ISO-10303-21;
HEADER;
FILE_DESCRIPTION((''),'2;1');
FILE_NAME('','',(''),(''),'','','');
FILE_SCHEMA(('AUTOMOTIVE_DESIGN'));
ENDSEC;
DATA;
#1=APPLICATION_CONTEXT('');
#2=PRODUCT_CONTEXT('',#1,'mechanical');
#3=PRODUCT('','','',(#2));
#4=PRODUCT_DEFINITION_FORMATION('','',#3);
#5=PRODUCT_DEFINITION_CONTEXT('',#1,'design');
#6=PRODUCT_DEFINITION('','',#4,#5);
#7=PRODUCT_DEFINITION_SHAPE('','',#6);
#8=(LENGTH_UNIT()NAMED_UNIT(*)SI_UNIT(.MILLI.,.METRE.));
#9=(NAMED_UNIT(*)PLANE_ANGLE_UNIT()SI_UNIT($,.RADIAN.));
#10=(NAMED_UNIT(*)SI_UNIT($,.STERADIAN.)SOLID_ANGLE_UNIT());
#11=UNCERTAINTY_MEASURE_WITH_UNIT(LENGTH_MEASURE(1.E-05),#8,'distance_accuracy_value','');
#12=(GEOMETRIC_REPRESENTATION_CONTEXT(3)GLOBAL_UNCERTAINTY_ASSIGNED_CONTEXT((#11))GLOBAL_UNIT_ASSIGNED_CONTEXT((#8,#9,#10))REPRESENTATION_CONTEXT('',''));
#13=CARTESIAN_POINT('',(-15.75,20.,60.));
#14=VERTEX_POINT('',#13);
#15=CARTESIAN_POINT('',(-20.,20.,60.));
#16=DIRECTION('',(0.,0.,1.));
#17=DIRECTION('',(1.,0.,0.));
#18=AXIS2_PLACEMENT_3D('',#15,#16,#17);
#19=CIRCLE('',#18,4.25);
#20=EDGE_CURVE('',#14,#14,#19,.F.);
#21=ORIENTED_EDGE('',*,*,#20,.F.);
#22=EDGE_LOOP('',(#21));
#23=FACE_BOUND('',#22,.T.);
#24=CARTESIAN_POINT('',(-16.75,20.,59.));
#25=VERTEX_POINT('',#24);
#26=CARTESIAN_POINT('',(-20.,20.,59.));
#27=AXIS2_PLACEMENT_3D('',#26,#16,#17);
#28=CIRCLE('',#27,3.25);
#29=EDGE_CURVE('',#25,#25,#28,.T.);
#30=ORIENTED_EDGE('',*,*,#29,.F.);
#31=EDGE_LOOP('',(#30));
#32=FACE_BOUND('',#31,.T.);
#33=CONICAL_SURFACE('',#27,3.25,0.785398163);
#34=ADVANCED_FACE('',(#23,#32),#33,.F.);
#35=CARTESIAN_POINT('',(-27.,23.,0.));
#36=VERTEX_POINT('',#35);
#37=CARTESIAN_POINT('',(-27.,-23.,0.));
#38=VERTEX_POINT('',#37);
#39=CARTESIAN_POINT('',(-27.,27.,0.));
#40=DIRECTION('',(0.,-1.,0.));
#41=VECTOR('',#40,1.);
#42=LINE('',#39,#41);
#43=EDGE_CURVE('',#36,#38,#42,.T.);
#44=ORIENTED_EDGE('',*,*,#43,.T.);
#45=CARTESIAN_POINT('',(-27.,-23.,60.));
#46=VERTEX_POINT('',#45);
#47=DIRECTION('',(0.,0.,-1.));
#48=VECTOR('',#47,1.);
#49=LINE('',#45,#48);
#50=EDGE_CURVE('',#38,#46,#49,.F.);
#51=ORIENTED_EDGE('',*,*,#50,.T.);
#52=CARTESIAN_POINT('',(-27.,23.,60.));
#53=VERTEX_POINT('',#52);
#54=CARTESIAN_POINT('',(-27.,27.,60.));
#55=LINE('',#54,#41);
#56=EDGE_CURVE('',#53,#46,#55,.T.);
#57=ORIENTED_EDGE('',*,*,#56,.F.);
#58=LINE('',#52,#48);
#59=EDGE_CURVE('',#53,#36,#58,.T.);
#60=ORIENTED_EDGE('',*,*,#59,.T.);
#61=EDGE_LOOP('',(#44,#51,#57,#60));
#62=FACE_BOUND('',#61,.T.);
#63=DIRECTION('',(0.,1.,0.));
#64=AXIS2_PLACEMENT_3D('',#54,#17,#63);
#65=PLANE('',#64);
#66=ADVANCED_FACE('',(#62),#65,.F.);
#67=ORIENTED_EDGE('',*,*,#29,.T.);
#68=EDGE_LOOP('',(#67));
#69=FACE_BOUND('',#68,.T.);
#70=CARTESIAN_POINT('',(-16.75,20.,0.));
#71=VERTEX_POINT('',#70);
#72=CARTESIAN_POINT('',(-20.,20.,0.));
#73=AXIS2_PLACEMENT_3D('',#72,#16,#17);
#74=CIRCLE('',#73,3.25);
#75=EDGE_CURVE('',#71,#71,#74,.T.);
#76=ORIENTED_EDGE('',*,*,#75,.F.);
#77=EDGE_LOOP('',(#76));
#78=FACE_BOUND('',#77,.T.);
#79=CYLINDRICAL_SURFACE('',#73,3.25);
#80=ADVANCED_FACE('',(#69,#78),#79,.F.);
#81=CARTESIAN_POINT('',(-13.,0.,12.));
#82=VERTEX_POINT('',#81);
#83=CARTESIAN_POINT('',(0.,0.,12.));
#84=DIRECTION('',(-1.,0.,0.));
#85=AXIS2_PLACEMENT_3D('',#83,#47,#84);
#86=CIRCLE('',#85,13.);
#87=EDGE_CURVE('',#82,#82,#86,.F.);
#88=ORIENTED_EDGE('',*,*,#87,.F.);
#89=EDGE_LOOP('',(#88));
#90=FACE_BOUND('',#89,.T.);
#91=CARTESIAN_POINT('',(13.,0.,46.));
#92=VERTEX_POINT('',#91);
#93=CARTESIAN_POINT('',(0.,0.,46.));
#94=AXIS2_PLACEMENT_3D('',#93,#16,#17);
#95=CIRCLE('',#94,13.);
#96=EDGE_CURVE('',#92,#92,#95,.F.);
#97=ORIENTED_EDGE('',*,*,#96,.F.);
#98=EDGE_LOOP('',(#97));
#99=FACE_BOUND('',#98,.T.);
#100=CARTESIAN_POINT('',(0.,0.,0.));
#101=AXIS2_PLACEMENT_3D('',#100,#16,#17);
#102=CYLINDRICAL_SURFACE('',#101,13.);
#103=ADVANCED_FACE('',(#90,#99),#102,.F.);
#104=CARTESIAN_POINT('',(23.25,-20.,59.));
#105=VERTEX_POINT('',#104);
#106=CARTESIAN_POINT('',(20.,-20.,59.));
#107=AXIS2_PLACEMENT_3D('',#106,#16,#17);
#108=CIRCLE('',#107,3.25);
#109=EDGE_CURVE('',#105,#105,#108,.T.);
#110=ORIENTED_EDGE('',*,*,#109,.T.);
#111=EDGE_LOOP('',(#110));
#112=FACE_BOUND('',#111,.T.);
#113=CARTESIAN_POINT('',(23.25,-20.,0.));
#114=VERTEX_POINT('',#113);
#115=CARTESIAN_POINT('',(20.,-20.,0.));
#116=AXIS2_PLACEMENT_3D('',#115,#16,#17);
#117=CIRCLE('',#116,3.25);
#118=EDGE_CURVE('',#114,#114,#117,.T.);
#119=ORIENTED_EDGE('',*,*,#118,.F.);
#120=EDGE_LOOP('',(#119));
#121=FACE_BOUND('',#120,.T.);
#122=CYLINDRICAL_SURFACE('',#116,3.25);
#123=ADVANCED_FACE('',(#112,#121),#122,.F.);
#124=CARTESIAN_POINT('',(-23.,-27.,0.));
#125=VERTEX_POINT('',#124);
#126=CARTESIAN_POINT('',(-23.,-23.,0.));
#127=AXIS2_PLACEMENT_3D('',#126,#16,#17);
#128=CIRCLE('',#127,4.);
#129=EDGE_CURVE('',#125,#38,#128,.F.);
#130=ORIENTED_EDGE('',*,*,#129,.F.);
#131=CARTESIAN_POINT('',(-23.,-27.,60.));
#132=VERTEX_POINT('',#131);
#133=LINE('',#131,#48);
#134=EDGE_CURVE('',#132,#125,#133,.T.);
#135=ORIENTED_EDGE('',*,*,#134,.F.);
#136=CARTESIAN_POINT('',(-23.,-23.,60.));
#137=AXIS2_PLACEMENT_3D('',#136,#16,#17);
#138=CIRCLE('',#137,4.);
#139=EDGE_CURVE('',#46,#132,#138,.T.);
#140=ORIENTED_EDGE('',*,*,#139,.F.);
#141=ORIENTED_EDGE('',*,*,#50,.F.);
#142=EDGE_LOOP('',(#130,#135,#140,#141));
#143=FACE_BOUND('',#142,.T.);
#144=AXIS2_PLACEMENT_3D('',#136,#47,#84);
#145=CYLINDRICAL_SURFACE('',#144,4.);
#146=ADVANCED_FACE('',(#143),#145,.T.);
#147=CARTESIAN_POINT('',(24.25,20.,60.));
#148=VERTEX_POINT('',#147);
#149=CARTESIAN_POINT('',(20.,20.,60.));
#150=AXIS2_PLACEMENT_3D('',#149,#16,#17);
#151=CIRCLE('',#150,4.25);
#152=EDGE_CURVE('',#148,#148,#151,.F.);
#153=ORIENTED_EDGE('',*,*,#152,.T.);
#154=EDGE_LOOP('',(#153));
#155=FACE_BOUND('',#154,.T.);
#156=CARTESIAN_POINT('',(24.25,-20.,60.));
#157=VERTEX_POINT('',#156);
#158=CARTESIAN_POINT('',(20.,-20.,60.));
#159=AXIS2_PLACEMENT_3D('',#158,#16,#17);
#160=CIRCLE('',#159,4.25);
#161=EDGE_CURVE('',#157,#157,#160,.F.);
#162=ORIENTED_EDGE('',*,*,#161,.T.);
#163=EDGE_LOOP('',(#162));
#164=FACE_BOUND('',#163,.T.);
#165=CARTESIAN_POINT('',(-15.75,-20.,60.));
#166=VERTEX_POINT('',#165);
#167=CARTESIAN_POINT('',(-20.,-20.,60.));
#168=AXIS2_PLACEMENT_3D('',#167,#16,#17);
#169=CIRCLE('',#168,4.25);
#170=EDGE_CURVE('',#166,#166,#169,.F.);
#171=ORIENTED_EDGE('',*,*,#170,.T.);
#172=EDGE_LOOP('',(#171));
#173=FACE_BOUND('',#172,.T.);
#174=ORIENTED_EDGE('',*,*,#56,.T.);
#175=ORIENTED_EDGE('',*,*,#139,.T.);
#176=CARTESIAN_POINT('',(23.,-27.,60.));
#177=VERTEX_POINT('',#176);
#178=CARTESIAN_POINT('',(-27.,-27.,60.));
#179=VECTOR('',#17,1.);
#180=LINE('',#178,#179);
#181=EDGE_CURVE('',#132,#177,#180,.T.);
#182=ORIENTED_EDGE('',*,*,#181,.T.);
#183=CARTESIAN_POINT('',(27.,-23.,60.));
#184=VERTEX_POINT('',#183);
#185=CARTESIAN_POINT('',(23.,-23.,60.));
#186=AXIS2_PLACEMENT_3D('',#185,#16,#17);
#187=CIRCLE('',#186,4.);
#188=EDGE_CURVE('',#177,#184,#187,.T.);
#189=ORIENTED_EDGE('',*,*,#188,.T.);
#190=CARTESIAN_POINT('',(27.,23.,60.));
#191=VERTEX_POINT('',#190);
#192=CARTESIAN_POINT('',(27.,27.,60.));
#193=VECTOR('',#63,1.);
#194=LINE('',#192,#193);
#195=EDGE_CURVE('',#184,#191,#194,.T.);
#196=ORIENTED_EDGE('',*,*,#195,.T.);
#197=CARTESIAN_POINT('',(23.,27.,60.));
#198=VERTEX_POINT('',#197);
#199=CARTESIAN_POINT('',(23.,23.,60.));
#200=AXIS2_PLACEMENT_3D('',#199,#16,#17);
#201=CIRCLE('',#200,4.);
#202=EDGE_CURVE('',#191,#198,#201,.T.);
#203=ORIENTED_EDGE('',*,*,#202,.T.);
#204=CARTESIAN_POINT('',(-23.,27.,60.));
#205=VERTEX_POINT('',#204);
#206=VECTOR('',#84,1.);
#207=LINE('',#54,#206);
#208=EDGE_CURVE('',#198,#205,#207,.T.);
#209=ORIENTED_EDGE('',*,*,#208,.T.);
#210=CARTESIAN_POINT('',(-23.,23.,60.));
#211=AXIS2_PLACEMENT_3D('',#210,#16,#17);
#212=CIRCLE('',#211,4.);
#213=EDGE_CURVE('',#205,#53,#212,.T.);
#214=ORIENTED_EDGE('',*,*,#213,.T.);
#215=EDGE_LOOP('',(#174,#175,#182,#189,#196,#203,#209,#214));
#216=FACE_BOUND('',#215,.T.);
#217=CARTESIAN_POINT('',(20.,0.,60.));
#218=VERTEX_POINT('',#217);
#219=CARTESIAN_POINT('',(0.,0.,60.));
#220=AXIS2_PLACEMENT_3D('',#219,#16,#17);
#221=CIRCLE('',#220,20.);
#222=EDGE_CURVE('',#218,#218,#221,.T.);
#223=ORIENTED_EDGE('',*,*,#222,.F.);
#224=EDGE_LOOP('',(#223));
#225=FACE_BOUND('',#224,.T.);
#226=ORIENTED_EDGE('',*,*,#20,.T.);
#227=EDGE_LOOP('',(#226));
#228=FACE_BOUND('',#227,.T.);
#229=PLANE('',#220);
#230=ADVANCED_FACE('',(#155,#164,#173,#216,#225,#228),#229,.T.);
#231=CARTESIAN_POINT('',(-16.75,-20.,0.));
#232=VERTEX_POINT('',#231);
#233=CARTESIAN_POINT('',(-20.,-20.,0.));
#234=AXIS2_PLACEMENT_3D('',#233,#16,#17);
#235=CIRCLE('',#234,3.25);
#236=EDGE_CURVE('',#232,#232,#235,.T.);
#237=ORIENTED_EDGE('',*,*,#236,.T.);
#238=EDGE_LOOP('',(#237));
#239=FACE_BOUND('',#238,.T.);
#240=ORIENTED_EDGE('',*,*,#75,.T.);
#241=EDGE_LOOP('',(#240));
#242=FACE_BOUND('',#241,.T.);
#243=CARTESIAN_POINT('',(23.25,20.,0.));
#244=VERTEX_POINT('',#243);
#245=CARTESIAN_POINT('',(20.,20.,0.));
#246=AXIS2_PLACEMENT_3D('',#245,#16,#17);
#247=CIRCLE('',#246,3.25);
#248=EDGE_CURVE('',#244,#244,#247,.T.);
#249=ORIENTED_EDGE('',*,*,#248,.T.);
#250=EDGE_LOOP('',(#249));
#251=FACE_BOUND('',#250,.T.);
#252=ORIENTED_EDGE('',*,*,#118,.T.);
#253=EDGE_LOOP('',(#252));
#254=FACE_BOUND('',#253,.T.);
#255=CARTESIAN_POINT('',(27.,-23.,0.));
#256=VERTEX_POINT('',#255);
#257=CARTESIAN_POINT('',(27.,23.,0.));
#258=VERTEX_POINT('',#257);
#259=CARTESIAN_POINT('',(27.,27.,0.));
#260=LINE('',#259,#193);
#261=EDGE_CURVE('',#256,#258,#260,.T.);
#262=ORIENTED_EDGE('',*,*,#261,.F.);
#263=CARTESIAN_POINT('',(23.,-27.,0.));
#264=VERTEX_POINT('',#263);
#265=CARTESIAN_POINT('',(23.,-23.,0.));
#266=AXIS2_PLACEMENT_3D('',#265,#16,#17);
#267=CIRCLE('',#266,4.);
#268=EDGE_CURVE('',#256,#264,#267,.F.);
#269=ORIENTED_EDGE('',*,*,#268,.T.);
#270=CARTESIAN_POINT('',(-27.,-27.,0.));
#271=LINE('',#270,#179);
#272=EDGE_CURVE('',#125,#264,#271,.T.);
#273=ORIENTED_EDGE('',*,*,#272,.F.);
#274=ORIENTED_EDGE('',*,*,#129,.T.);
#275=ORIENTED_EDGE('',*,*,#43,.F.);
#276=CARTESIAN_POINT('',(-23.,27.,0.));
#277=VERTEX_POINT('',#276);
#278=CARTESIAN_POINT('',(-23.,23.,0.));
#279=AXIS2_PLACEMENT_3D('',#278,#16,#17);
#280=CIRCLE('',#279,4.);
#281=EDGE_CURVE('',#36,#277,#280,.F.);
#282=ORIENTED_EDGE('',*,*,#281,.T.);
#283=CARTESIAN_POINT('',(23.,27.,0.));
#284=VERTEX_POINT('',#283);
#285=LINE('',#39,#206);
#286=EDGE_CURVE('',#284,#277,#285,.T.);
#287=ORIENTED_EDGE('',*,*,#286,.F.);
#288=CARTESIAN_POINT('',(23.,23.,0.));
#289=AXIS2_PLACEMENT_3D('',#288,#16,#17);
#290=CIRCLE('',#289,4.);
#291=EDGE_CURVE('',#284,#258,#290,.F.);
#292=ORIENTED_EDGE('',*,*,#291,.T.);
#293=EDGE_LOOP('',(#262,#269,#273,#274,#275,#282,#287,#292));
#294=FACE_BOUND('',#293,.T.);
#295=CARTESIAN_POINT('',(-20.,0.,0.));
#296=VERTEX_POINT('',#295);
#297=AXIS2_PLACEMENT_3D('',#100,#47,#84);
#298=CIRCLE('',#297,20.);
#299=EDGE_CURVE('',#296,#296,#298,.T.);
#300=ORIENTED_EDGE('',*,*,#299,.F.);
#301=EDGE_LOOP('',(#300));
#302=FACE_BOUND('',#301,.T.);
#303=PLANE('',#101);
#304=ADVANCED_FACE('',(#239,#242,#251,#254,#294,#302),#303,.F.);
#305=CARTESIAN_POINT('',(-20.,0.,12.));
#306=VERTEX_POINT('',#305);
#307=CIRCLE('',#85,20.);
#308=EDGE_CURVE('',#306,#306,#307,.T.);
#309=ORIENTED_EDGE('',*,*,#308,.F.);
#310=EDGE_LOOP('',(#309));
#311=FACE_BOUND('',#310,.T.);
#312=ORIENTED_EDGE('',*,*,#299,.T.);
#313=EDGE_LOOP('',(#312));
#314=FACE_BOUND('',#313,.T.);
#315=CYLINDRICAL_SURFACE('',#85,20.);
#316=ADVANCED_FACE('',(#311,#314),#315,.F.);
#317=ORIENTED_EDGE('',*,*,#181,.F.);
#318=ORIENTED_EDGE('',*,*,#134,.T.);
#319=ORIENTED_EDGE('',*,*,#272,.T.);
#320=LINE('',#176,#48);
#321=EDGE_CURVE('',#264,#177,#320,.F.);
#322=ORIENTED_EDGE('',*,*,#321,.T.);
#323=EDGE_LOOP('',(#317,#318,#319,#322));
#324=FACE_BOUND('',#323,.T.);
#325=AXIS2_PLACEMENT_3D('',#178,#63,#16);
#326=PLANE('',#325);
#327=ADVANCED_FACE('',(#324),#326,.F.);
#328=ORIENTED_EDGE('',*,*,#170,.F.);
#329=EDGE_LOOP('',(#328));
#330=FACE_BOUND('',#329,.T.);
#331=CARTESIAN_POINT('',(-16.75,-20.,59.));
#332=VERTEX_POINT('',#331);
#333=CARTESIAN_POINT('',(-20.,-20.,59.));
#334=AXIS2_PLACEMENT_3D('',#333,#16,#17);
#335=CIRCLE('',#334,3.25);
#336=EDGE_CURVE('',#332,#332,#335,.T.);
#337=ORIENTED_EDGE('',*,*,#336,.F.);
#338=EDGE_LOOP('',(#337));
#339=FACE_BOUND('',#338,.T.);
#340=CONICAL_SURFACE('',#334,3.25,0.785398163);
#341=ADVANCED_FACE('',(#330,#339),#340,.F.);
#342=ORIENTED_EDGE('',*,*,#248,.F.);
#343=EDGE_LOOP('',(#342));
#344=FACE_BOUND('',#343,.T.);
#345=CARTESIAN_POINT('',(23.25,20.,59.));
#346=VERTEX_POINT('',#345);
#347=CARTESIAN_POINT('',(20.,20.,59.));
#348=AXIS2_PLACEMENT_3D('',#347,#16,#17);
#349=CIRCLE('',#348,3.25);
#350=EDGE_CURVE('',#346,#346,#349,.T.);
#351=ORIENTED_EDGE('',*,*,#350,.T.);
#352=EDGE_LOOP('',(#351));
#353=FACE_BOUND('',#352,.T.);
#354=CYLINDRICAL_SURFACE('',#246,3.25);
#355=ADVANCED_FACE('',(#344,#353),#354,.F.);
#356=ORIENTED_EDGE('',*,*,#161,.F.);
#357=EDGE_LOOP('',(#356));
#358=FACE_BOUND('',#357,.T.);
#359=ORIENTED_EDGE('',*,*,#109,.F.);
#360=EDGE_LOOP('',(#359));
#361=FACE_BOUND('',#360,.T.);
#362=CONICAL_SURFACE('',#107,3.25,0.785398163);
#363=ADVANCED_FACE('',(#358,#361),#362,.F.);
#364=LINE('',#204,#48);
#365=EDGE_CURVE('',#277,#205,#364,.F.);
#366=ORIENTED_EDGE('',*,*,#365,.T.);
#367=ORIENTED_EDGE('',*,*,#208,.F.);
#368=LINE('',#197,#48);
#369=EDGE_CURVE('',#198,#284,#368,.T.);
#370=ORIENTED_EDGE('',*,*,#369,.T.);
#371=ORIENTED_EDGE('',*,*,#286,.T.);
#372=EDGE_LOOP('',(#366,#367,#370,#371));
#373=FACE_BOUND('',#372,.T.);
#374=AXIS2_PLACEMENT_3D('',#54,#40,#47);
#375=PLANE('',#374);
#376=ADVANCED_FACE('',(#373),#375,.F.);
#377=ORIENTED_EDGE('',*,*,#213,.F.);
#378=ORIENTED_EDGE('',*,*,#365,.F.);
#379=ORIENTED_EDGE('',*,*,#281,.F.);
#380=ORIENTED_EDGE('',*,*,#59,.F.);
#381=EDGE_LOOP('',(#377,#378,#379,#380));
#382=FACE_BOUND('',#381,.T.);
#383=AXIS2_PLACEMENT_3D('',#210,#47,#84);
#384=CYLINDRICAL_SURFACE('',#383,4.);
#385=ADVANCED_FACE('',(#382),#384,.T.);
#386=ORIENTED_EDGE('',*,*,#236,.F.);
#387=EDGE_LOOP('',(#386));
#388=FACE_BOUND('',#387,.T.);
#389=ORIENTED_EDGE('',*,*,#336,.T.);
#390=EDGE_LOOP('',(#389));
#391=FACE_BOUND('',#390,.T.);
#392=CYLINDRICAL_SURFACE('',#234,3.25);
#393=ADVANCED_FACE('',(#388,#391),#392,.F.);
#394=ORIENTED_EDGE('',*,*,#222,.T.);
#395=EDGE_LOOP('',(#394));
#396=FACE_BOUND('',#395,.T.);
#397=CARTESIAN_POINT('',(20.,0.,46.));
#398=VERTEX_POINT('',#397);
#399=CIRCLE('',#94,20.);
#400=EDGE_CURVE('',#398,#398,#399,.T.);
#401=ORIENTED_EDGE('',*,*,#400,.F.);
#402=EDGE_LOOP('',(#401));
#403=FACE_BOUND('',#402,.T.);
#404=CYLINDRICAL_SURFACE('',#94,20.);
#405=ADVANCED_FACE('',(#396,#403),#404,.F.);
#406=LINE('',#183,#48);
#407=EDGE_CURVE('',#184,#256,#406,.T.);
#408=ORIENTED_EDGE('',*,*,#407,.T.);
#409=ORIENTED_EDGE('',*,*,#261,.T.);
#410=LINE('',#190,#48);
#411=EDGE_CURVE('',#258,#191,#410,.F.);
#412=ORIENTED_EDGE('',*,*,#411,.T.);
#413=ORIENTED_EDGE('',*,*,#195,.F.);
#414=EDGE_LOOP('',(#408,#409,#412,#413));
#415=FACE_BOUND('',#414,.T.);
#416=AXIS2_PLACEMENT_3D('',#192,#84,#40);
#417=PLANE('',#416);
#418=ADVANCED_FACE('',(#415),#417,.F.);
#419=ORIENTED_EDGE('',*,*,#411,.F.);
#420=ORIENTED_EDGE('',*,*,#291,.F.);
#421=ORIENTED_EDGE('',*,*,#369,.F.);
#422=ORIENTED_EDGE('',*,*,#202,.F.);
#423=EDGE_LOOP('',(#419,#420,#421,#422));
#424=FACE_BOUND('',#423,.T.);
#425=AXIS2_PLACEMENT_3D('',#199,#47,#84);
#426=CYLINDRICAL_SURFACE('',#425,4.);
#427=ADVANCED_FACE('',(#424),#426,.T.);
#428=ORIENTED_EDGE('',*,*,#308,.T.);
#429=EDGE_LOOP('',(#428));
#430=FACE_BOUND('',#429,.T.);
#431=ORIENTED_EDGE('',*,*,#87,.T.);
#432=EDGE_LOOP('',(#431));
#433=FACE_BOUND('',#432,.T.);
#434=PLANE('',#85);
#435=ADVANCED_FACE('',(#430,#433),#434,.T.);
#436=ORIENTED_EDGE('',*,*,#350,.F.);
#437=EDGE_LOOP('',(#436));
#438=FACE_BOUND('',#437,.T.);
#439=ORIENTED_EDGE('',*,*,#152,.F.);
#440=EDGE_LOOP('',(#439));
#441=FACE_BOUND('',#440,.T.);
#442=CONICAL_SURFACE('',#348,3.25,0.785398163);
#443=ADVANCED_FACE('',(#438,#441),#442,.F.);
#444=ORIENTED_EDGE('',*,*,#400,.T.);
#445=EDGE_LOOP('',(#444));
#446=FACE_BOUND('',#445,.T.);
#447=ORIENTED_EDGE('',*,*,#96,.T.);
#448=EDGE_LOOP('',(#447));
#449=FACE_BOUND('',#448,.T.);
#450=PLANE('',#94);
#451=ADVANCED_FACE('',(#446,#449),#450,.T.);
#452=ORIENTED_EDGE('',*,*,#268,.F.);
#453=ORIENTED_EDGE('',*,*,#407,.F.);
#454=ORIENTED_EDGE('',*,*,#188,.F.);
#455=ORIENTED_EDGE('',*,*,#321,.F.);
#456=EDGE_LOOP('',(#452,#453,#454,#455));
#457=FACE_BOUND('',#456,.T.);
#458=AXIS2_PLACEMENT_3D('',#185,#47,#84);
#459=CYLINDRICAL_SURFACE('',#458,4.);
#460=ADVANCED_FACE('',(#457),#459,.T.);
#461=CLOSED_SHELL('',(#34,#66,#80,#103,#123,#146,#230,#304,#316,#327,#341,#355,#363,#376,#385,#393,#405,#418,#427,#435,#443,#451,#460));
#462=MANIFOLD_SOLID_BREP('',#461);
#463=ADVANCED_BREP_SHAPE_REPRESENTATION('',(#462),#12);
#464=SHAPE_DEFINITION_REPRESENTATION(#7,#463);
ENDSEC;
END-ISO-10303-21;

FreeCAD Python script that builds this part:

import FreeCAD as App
import Part
import Sketcher
from FreeCAD import Vector
Q = App.Units.Quantity


def edges_at(feature, points):
    """Names of the edges that pass closest to the given points."""
    edges = feature.Shape.Edges
    near = lambda p: min(range(len(edges)), key=lambda i: edges[i].distToShape(Part.Vertex(*p))[0])
    return sorted({f"Edge{near(p) + 1}" for p in points})

doc = App.newDocument("Part")
body = doc.addObject("PartDesign::Body", "Body")

sketch1 = doc.addObject("Sketcher::SketchObject", "Sketch")
body.addObject(sketch1)
sketch1.AttachmentSupport = (doc.XY_Plane, [""])
sketch1.MapMode = "FlatFace"
sketch1.addGeometry([
    Part.LineSegment(Vector(-27, 27, 0), Vector(-27, -27, 0)),
    Part.LineSegment(Vector(-27, -27, 0), Vector(27, -27, 0)),
    Part.LineSegment(Vector(27, -27, 0), Vector(27, 27, 0)),
    Part.LineSegment(Vector(27, 27, 0), Vector(-27, 27, 0)),
], False)
sketch1.addConstraint([
    Sketcher.Constraint("Coincident", 0, 2, 1, 1),
    Sketcher.Constraint("Coincident", 1, 2, 2, 1),
    Sketcher.Constraint("Coincident", 2, 2, 3, 1),
    Sketcher.Constraint("Coincident", 3, 2, 0, 1),
    Sketcher.Constraint("Vertical", 0),
    Sketcher.Constraint("Horizontal", 1),
    Sketcher.Constraint("Vertical", 2),
    Sketcher.Constraint("Horizontal", 3),
    Sketcher.Constraint("Symmetric", 0, 2, 2, 2, -1, 1),
    Sketcher.Constraint("Equal", 3, 0),
    Sketcher.Constraint("DistanceX", 1, 1, 1, 2, Q("54 mm")),
])
pad1 = doc.addObject("PartDesign::Pad", "Pad")
body.addObject(pad1)
pad1.Profile = sketch1
pad1.Length = 60

sketch2 = doc.addObject("Sketcher::SketchObject", "Sketch001")
body.addObject(sketch2)
sketch2.AttachmentSupport = (doc.XY_Plane, [""])
sketch2.MapMode = "FlatFace"
sketch2.AttachmentOffset = App.Placement(Vector(0, 0, 60), App.Rotation())
sketch2.addGeometry(Part.Circle(Vector(0, 0, 0), Vector(0, 0, 1), 13), False)
sketch2.addConstraint([
    Sketcher.Constraint("Coincident", 0, 3, -1, 1),
    Sketcher.Constraint("Diameter", 0, Q("26 mm")),
])
pocket1 = doc.addObject("PartDesign::Pocket", "Pocket")
body.addObject(pocket1)
pocket1.Profile = sketch2
pocket1.Type = "ThroughAll"

sketch3 = doc.addObject("Sketcher::SketchObject", "Sketch002")
body.addObject(sketch3)
sketch3.AttachmentSupport = (doc.XY_Plane, [""])
sketch3.MapMode = "FlatFace"
sketch3.AttachmentOffset = App.Placement(Vector(0, 0, 60), App.Rotation())
sketch3.addGeometry(Part.Circle(Vector(0, 0, 0), Vector(0, 0, 1), 20), False)
sketch3.addConstraint([
    Sketcher.Constraint("Coincident", 0, 3, -1, 1),
    Sketcher.Constraint("Diameter", 0, Q("40 mm")),
])
pocket2 = doc.addObject("PartDesign::Pocket", "Pocket001")
body.addObject(pocket2)
pocket2.Profile = sketch3
pocket2.Length = 14

sketch4 = doc.addObject("Sketcher::SketchObject", "Sketch003")
body.addObject(sketch4)
sketch4.AttachmentSupport = (doc.XY_Plane, [""])
sketch4.MapMode = "FlatFace"
sketch4.AttachmentOffset = App.Placement(Vector(0, 0, 12), App.Rotation())
sketch4.addGeometry(Part.Circle(Vector(0, 0, 0), Vector(0, 0, 1), 20), False)
sketch4.addConstraint([
    Sketcher.Constraint("Coincident", 0, 3, -1, 1),
    Sketcher.Constraint("Diameter", 0, Q("40 mm")),
])
pocket3 = doc.addObject("PartDesign::Pocket", "Pocket002")
body.addObject(pocket3)
pocket3.Profile = sketch4
pocket3.Length = 12

sketch5 = doc.addObject("Sketcher::SketchObject", "Sketch004")
body.addObject(sketch5)
sketch5.AttachmentSupport = (doc.XY_Plane, [""])
sketch5.MapMode = "FlatFace"
sketch5.AttachmentOffset = App.Placement(Vector(0, 0, 60), App.Rotation())
sketch5.addGeometry([
    Part.Circle(Vector(20, 20, 0), Vector(0, 0, 1), 3.2),
    Part.Circle(Vector(20, -20, 0), Vector(0, 0, 1), 3.2),
    Part.Circle(Vector(-20, -20, 0), Vector(0, 0, 1), 3.2),
    Part.Circle(Vector(-20, 20, 0), Vector(0, 0, 1), 3.2),
], False)
sketch5.addConstraint([
    Sketcher.Constraint("Equal", 0, 1),
    Sketcher.Constraint("Equal", 1, 2),
    Sketcher.Constraint("Equal", 2, 3),
    Sketcher.Constraint("Symmetric", 0, 3, 2, 3, -1, 1),
    Sketcher.Constraint("Symmetric", 1, 3, 3, 3, -1, 1),
    Sketcher.Constraint("Symmetric", 1, 3, 2, 3, -2),
    Sketcher.Constraint("Diameter", 0, Q("6.5 mm")),
    Sketcher.Constraint("DistanceX", -1, 1, 0, 3, Q("20 mm")),
    Sketcher.Constraint("DistanceY", -1, 1, 0, 3, Q("20 mm")),
])
pocket4 = doc.addObject("PartDesign::Pocket", "Pocket003")
body.addObject(pocket4)
pocket4.Profile = sketch5
pocket4.Type = "ThroughAll"
doc.recompute()

fillet = doc.addObject("PartDesign::Fillet", "Fillet")
body.addObject(fillet)
fillet.Base = (pocket4, edges_at(pocket4, [
    (27, -27, 30),
    (-27, -27, 30),
    (-27, 27, 30),
    (27, 27, 30),
]))
fillet.Radius = 4
doc.recompute()

chamfer = doc.addObject("PartDesign::Chamfer", "Chamfer")
body.addObject(chamfer)
chamfer.Base = (fillet, edges_at(fillet, [
    (16.75, 20, 60),
    (16.75, -20, 60),
    (-23.25, -20, 60),
    (-23.25, 20, 60),
]))
chamfer.Size = 1

doc.recompute()
